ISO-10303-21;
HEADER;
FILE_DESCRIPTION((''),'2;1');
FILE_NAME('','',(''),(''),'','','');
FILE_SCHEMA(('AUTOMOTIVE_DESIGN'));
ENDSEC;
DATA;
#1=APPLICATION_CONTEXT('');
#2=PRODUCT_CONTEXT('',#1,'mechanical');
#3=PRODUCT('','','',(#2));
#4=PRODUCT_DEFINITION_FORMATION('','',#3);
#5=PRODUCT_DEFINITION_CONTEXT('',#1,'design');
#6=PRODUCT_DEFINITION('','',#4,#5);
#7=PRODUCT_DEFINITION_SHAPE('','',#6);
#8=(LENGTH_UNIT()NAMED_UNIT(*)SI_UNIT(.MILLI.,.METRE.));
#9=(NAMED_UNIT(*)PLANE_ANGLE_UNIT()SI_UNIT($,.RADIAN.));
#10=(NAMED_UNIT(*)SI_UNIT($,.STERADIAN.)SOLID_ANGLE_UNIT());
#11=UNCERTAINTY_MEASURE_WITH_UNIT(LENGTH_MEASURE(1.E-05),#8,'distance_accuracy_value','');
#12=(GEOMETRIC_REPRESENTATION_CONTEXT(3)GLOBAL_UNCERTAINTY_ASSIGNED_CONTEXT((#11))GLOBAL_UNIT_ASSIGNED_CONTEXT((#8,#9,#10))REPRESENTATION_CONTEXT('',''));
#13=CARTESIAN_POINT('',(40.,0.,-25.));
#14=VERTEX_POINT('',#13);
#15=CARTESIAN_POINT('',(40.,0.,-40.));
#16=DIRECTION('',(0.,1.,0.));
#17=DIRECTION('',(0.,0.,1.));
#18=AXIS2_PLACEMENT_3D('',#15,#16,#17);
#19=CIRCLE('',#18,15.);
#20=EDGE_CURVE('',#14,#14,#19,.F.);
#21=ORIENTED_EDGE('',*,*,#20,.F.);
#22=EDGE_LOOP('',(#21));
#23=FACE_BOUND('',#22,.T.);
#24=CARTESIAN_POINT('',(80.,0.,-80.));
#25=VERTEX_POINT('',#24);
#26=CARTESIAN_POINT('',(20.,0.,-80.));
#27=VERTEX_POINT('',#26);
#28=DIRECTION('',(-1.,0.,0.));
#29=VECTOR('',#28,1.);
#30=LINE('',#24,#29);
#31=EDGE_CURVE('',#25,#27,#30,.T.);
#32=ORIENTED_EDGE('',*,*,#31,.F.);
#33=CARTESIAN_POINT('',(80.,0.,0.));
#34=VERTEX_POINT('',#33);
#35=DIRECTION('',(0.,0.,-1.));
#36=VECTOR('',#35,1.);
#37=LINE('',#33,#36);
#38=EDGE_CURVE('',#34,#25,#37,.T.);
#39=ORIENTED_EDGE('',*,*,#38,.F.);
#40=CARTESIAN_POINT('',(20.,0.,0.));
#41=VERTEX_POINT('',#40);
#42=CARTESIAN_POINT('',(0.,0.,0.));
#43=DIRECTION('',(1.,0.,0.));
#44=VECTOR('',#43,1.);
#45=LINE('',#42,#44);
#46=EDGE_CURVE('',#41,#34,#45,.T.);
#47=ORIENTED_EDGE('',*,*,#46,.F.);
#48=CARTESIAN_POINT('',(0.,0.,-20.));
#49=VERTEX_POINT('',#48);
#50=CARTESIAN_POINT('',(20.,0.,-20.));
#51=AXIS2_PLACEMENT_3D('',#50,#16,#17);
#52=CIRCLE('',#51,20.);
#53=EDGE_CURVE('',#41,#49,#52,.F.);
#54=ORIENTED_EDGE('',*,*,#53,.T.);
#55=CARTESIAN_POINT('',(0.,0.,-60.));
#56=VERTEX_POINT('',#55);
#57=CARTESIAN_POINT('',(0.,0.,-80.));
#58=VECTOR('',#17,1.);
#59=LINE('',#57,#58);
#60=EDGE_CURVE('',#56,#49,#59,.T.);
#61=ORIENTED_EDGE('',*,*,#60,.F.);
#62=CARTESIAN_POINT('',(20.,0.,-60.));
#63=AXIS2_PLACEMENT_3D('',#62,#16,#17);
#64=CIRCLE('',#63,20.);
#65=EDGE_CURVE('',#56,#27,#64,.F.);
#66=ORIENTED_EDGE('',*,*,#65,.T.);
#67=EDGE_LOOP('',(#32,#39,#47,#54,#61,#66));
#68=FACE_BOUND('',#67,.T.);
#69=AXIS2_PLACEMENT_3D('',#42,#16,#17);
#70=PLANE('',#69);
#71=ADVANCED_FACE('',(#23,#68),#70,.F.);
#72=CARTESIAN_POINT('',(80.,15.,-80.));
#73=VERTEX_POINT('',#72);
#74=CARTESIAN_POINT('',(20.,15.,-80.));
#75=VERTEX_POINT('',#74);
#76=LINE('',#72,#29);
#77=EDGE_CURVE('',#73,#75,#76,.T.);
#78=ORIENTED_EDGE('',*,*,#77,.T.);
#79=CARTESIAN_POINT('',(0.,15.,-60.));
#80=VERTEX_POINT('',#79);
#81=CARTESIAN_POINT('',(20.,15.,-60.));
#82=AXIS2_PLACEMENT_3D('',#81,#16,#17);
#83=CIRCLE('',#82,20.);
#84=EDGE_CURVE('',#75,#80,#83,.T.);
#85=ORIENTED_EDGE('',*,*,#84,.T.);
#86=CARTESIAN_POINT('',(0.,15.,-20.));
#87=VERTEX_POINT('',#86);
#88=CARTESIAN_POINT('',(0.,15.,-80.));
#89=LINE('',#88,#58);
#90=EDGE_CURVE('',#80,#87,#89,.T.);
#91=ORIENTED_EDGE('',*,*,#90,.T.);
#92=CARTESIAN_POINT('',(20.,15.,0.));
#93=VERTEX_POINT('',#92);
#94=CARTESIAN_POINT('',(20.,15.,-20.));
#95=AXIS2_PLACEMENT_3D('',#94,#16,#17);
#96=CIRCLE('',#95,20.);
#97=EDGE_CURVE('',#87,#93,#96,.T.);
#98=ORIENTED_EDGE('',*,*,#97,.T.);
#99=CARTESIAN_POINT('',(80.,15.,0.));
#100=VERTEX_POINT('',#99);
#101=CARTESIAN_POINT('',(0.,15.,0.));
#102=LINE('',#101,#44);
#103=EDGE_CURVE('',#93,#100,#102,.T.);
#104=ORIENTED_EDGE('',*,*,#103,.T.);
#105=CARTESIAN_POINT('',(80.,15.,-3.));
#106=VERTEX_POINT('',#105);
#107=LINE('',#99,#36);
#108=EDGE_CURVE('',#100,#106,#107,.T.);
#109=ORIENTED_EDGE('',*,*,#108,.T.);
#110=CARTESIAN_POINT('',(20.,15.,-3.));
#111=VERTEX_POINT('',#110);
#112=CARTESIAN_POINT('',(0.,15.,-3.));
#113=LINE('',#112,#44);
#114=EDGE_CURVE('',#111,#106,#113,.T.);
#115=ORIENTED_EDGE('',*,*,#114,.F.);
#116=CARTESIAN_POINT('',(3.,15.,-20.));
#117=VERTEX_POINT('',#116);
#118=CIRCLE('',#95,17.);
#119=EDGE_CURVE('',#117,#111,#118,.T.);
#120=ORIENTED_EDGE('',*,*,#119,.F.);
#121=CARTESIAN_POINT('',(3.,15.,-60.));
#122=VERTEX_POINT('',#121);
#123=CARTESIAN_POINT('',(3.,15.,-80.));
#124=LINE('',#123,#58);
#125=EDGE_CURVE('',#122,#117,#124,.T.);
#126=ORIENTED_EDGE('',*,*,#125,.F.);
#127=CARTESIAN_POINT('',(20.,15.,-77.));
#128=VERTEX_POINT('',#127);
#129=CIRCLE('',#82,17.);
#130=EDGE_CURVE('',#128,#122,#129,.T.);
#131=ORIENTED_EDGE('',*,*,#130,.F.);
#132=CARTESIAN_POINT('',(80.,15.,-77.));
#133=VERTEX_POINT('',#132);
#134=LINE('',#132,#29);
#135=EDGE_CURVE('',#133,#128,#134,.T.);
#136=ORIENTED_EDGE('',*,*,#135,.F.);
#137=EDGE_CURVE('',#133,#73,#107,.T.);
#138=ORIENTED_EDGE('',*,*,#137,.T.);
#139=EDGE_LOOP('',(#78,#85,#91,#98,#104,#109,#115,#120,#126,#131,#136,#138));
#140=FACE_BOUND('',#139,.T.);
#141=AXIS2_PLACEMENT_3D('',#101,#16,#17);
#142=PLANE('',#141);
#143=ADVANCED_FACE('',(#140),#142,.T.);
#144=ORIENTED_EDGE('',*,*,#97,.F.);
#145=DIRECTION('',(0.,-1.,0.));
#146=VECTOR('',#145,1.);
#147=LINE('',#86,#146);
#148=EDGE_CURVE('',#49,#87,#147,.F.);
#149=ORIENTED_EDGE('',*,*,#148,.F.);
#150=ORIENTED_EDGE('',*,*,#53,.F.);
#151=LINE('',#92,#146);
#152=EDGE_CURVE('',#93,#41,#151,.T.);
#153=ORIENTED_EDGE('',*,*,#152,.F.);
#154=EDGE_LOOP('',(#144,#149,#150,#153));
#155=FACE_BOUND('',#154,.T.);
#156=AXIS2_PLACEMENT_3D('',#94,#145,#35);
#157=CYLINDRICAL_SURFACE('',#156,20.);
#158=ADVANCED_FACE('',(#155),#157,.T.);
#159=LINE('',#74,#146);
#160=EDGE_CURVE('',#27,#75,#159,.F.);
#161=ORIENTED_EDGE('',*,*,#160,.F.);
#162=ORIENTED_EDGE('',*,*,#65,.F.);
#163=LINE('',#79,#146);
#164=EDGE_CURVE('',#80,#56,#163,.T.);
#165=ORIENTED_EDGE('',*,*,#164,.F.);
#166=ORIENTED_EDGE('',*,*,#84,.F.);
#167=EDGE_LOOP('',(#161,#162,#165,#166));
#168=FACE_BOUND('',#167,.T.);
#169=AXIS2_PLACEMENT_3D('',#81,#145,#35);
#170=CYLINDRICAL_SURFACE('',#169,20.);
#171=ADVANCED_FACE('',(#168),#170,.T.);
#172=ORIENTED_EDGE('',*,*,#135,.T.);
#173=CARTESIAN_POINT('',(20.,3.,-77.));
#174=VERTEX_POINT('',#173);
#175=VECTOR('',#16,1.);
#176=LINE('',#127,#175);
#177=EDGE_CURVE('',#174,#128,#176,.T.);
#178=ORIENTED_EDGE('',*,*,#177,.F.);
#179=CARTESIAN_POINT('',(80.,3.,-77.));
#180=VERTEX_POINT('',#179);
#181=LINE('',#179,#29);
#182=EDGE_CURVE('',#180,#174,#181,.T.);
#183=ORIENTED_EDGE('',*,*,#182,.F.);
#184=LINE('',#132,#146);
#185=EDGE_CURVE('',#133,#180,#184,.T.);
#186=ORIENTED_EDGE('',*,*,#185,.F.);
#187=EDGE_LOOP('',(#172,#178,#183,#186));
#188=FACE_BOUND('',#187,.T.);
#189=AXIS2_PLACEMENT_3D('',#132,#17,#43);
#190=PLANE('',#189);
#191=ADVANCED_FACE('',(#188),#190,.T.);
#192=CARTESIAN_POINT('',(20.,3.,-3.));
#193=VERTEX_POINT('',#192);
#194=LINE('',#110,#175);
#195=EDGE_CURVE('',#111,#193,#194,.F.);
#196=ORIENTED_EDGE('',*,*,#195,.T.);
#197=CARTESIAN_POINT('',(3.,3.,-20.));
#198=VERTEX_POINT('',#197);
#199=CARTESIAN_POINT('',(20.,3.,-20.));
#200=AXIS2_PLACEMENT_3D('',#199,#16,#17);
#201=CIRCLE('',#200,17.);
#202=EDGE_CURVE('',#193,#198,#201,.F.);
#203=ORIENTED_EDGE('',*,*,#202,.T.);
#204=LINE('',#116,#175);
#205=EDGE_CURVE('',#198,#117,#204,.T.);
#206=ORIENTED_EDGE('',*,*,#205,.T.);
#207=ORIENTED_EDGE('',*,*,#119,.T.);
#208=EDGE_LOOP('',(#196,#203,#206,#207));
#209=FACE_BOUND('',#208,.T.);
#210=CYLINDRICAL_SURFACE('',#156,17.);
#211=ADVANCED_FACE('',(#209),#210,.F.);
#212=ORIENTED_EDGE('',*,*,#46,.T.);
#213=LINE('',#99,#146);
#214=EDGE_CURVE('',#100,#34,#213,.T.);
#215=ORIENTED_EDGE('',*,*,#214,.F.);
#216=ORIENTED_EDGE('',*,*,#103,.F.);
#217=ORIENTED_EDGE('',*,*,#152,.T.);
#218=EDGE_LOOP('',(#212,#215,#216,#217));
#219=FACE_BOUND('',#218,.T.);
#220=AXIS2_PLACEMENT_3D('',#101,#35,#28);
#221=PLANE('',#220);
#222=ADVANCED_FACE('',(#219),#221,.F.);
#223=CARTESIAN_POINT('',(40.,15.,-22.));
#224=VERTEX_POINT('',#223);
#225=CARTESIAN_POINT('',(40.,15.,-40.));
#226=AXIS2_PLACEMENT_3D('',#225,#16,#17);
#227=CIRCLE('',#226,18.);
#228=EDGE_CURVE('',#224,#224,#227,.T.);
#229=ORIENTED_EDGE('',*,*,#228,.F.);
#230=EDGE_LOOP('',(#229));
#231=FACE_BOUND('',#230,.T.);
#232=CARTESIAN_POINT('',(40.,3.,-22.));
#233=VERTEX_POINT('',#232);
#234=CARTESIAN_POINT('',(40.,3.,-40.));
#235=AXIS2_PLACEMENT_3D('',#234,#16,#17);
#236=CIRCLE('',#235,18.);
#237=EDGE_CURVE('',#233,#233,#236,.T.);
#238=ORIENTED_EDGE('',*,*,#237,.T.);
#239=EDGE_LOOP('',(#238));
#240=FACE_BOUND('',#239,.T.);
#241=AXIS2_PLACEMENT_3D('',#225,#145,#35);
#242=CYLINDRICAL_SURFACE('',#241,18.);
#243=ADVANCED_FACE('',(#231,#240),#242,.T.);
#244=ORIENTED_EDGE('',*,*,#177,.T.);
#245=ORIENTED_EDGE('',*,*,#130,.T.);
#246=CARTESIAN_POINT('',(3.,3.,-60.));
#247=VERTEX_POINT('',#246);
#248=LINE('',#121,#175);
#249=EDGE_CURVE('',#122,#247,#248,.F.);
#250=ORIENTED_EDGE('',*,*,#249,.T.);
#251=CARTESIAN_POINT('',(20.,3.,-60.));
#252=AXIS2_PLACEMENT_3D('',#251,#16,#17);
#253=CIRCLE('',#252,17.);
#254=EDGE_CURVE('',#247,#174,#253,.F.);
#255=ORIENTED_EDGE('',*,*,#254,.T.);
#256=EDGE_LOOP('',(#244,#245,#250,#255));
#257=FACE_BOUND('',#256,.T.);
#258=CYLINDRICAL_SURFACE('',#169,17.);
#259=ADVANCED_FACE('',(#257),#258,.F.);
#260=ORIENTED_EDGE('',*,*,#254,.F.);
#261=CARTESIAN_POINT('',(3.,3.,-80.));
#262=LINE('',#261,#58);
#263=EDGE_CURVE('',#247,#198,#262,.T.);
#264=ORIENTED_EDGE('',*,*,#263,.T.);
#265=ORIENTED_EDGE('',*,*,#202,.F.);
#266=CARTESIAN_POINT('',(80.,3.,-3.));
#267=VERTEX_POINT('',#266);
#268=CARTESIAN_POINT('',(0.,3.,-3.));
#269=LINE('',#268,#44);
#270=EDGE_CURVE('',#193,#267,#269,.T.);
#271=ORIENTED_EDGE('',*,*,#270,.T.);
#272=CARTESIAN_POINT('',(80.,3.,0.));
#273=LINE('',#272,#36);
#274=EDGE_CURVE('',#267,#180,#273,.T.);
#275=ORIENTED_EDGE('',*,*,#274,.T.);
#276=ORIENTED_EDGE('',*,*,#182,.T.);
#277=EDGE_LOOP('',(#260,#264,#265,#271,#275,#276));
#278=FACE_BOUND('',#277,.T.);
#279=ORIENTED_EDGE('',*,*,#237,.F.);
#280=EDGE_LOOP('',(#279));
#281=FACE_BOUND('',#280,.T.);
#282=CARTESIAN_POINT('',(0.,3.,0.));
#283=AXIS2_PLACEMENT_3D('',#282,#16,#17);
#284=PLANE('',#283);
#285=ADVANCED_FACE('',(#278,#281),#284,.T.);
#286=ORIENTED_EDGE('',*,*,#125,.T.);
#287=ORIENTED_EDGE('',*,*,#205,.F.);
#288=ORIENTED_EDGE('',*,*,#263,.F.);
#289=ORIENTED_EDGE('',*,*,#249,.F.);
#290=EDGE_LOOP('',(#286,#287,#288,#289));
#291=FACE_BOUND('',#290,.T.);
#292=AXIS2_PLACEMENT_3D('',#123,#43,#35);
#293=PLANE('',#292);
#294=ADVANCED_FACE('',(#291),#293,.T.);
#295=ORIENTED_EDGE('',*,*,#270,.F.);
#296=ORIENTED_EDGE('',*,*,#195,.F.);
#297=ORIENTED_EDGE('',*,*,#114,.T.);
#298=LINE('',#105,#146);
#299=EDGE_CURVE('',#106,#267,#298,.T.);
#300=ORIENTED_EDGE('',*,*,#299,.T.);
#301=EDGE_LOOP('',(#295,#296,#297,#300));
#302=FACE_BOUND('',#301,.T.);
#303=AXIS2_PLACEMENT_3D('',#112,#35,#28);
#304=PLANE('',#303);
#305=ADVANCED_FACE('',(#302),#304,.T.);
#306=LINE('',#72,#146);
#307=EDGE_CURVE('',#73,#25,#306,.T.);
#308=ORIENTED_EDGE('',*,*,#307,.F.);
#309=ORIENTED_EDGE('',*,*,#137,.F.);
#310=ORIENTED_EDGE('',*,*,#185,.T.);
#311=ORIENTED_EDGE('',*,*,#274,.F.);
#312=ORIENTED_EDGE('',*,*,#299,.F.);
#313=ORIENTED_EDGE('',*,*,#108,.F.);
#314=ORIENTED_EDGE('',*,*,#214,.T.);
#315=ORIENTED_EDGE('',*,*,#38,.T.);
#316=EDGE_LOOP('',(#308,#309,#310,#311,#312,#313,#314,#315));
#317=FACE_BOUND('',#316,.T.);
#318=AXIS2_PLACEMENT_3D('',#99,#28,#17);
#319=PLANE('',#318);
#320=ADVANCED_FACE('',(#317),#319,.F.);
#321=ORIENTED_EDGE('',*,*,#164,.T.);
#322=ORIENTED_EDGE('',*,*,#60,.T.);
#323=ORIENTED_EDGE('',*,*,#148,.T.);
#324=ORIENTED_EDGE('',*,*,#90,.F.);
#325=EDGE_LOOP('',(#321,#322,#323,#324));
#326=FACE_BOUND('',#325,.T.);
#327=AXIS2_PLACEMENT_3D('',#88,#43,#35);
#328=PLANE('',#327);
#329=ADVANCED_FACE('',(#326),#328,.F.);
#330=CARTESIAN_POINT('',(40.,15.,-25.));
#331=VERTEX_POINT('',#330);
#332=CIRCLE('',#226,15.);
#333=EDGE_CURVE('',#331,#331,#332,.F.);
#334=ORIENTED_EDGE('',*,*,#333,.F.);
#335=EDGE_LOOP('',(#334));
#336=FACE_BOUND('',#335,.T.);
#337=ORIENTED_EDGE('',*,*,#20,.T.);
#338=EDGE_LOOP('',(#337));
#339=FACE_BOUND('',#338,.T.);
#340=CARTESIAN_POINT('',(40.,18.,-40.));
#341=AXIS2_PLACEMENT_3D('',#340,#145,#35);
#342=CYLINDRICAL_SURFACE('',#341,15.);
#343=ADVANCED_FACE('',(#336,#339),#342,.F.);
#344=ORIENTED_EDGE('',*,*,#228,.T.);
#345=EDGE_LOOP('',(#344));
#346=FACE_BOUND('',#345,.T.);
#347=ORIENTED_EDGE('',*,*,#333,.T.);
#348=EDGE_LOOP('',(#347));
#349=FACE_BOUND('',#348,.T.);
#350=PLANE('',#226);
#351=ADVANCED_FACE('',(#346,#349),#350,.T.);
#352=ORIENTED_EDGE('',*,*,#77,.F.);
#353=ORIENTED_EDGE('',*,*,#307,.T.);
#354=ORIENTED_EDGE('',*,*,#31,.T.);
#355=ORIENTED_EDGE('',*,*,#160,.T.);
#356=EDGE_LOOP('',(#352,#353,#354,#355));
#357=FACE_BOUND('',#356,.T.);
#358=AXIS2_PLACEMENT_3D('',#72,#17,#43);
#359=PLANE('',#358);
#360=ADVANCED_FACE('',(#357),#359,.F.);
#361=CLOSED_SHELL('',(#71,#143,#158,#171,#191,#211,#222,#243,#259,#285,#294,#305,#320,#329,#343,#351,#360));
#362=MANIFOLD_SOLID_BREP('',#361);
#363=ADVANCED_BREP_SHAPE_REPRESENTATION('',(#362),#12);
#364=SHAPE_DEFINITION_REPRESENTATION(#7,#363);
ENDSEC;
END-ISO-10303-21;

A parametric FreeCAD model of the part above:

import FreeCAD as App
import Part
import Sketcher
from FreeCAD import Vector


def edges_at(feature, points):
    """Names of the edges that pass closest to the given points."""
    edges = feature.Shape.Edges
    near = lambda p: min(range(len(edges)), key=lambda i: edges[i].distToShape(Part.Vertex(*p))[0])
    return sorted({f"Edge{near(p) + 1}" for p in points})


def faces_at(feature, points):
    """Names of the faces that lie closest to the given points."""
    faces = feature.Shape.Faces
    near = lambda p: min(range(len(faces)), key=lambda i: faces[i].distToShape(Part.Vertex(*p))[0])
    return sorted({f"Face{near(p) + 1}" for p in points})

doc = App.newDocument("Part")
params = doc.addObject("Spreadsheet::Sheet", "Params")
for row, (alias, value) in enumerate([
    ("sketch1_width", "80 mm"),
    ("pad1_length", "15 mm"),
    ("fillet_radius", "20 mm"),
    ("thickness_wall", "3 mm"),
    ("sketch2_diameter", "36 mm"),
    ("pad2_length", "12 mm"),
    ("sketch3_diameter", "30 mm"),
], start=1):
    params.set(f"A{row}", alias)
    params.set(f"B{row}", "=" + value)
    params.setAlias(f"B{row}", alias)

body = doc.addObject("PartDesign::Body", "Body")

# Sketch on XZ plane
sketch1 = body.newObject("Sketcher::SketchObject", "Sketch")
sketch1.AttachmentSupport = (doc.getObject("XZ_Plane"), [""])
sketch1.MapMode = "FlatFace"
sketch1.addGeometry([
    Part.LineSegment(Vector(0, -80, 0), Vector(0, 0, 0)),
    Part.LineSegment(Vector(0, 0, 0), Vector(80, 0, 0)),
    Part.LineSegment(Vector(80, 0, 0), Vector(80, -80, 0)),
    Part.LineSegment(Vector(80, -80, 0), Vector(0, -80, 0)),
], False)
sketch1.addConstraint([
    Sketcher.Constraint("Coincident", 0, 2, 1, 1),
    Sketcher.Constraint("Coincident", 1, 2, 2, 1),
    Sketcher.Constraint("Coincident", 2, 2, 3, 1),
    Sketcher.Constraint("Coincident", 3, 2, 0, 1),
    Sketcher.Constraint("Vertical", 0),
    Sketcher.Constraint("Horizontal", 1),
    Sketcher.Constraint("Vertical", 2),
    Sketcher.Constraint("Horizontal", 3),
    Sketcher.Constraint("Coincident", 0, 2, -1, 1),
    Sketcher.Constraint("Equal", 3, 0),
    Sketcher.Constraint("DistanceX", 1, 1, 1, 2, 80.0),
])
sketch1.setExpression("Constraints[10]", "Params.sketch1_width")
pad1 = body.newObject("PartDesign::Pad", "Pad")
pad1.Profile = sketch1
pad1.setExpression("Length", "Params.pad1_length")
pad1.Reversed = True
doc.recompute()

fillet = body.newObject("PartDesign::Fillet", "Fillet")
fillet.Base = (pad1, edges_at(pad1, [(0, 7.5, 0), (0, 7.5, -80)]))
fillet.setExpression("Radius", "Params.fillet_radius")
doc.recompute()

thickness = body.newObject("PartDesign::Thickness", "Thickness")
thickness.Base = (fillet, faces_at(fillet, [(40, 15, -40), (80, 7.5, -40)]))
thickness.setExpression("Value", "Params.thickness_wall")
thickness.Reversed = True
thickness.Join = "Intersection"

# Sketch on XZ plane
sketch2 = body.newObject("Sketcher::SketchObject", "Sketch001")
sketch2.AttachmentSupport = (doc.getObject("XZ_Plane"), [""])
sketch2.MapMode = "FlatFace"
sketch2.AttachmentOffset = App.Placement(Vector(0, 0, -3), App.Rotation())
sketch2.addGeometry(Part.Circle(Vector(40, -40, 0), Vector(0, 0, 1), 18), False)
sketch2.addConstraint([
    Sketcher.Constraint("Diameter", 0, 36.0),
    Sketcher.Constraint("DistanceX", -1, 1, 0, 3, 40.0),
    Sketcher.Constraint("DistanceY", 0, 3, -1, 1, 40.0),
])
sketch2.setExpression("Constraints[0]", "Params.sketch2_diameter")
pad2 = body.newObject("PartDesign::Pad", "Pad001")
pad2.Profile = sketch2
pad2.setExpression("Length", "Params.pad2_length")
pad2.Reversed = True

# Sketch on XZ plane
sketch3 = body.newObject("Sketcher::SketchObject", "Sketch002")
sketch3.AttachmentSupport = (doc.getObject("XZ_Plane"), [""])
sketch3.MapMode = "FlatFace"
sketch3.AttachmentOffset = App.Placement(Vector(0, 0, -3), App.Rotation())
sketch3.addGeometry(Part.Circle(Vector(40, -40, 0), Vector(0, 0, 1), 15), False)
sketch3.addConstraint([
    Sketcher.Constraint("Diameter", 0, 30.0),
    Sketcher.Constraint("DistanceX", -1, 1, 0, 3, 40.0),
    Sketcher.Constraint("DistanceY", 0, 3, -1, 1, 40.0),
])
sketch3.setExpression("Constraints[0]", "Params.sketch3_diameter")
pocket1 = body.newObject("PartDesign::Pocket", "Pocket")
pocket1.Profile = sketch3
pocket1.Type = "ThroughAll"
pocket1.Midplane = True

doc.recompute()
